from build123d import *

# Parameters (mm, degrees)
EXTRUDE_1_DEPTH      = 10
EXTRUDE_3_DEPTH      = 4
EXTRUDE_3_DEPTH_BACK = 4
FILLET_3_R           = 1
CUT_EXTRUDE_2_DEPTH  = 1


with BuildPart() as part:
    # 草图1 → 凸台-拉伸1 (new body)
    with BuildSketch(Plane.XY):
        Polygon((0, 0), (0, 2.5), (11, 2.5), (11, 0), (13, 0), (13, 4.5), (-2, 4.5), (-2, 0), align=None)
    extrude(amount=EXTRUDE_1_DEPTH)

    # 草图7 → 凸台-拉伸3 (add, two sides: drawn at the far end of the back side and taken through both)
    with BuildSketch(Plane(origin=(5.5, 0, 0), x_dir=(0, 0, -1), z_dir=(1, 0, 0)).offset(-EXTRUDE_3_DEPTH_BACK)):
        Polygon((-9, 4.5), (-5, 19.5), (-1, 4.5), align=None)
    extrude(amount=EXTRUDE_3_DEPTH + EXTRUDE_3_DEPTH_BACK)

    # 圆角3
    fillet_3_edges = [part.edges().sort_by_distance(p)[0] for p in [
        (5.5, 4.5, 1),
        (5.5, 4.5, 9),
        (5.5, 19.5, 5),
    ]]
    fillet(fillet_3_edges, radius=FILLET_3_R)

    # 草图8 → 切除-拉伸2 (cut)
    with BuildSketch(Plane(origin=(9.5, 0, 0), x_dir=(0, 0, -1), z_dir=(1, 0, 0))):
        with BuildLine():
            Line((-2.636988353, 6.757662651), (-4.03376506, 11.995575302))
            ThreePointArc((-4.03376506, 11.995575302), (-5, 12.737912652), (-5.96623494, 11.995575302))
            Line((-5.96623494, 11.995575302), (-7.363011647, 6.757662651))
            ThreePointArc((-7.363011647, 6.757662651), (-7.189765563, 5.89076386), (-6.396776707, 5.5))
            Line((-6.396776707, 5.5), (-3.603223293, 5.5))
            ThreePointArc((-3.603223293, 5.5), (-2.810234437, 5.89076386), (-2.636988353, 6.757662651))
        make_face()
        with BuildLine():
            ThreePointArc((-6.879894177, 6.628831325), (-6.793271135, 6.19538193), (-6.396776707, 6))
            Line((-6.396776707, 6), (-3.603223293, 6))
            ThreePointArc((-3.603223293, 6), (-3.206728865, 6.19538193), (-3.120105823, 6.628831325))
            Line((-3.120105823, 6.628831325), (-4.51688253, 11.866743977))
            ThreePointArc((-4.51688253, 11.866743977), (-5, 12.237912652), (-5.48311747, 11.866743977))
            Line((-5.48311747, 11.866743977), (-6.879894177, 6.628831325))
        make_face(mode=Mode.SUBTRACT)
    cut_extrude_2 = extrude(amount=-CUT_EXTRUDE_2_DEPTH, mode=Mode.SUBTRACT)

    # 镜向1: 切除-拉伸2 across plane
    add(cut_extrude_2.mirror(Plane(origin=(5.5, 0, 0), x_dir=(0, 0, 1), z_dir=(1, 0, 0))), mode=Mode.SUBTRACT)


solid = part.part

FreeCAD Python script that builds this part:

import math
import FreeCAD as App
import Part
import Sketcher

V = App.Vector
Q = App.Units.Quantity


def edges_at(feature, points):
    """Names of the edges that pass closest to the given points."""
    edges = feature.Shape.Edges
    near = lambda p: min(range(len(edges)), key=lambda i: edges[i].distToShape(Part.Vertex(*p))[0])
    return sorted({f"Edge{near(p) + 1}" for p in points})

doc = App.newDocument("Part")
params = doc.addObject("Spreadsheet::Sheet", "Params")
for row, (alias, value) in enumerate([
    ("sketch1_width", "11 mm"),
    ("sketch1_width2", "2 mm"),
    ("sketch1_height", "2.5 mm"),
    ("sketch1_height2", "4.5 mm"),
    ("pad1_length", "10 mm"),
    ("sketch2_height", "8 mm"),
    ("pad2_length", "4 mm"),
    ("pad2_length2", "4 mm"),
    ("fillet_radius", "1 mm"),
    ("sketch3_radius", "1 mm"),
    ("sketch3_radius2", "0.5 mm"),
    ("pocket1_length", "1 mm"),
], start=1):
    params.set(f"A{row}", alias)
    params.set(f"B{row}", "=" + value)
    params.setAlias(f"B{row}", alias)

body = doc.addObject("PartDesign::Body", "Body")

sketch1 = body.newObject("Sketcher::SketchObject", "Sketch")
sketch1.AttachmentSupport = (doc.getObject("XY_Plane"), [""])
sketch1.MapMode = "FlatFace"
sketch1.addGeometry([
    Part.LineSegment(V(0, 0, 0), V(0, 2.5, 0)),
    Part.LineSegment(V(0, 2.5, 0), V(11, 2.5, 0)),
    Part.LineSegment(V(11, 2.5, 0), V(11, 0, 0)),
    Part.LineSegment(V(11, 0, 0), V(13, 0, 0)),
    Part.LineSegment(V(13, 0, 0), V(13, 4.5, 0)),
    Part.LineSegment(V(13, 4.5, 0), V(-2, 4.5, 0)),
    Part.LineSegment(V(-2, 4.5, 0), V(-2, 0, 0)),
    Part.LineSegment(V(-2, 0, 0), V(0, 0, 0)),
], False)
sketch1.addConstraint([
    Sketcher.Constraint("Coincident", 0, 2, 1, 1),
    Sketcher.Constraint("Coincident", 1, 2, 2, 1),
    Sketcher.Constraint("Coincident", 2, 2, 3, 1),
    Sketcher.Constraint("Coincident", 3, 2, 4, 1),
    Sketcher.Constraint("Coincident", 4, 2, 5, 1),
    Sketcher.Constraint("Coincident", 5, 2, 6, 1),
    Sketcher.Constraint("Coincident", 6, 2, 7, 1),
    Sketcher.Constraint("Coincident", 7, 2, 0, 1),
    Sketcher.Constraint("Vertical", 0),
    Sketcher.Constraint("Horizontal", 1),
    Sketcher.Constraint("Vertical", 2),
    Sketcher.Constraint("Horizontal", 3),
    Sketcher.Constraint("Vertical", 4),
    Sketcher.Constraint("Horizontal", 5),
    Sketcher.Constraint("Vertical", 6),
    Sketcher.Constraint("Horizontal", 7),
    Sketcher.Constraint("Coincident", 7, 2, -1, 1),
    Sketcher.Constraint("PointOnObject", 2, 2, -1),
    Sketcher.Constraint("Equal", 3, 7),
    Sketcher.Constraint("DistanceX", 1, 1, 1, 2, Q("11 mm")),
    Sketcher.Constraint("DistanceX", 3, 1, 3, 2, Q("2 mm")),
    Sketcher.Constraint("DistanceY", 0, 1, 0, 2, Q("2.5 mm")),
    Sketcher.Constraint("DistanceY", 4, 1, 4, 2, Q("4.5 mm")),
])
sketch1.setExpression("Constraints[19]", "Params.sketch1_width")
sketch1.setExpression("Constraints[20]", "Params.sketch1_width2")
sketch1.setExpression("Constraints[21]", "Params.sketch1_height")
sketch1.setExpression("Constraints[22]", "Params.sketch1_height2")
pad1 = body.newObject("PartDesign::Pad", "Pad")
pad1.Profile = sketch1
pad1.setExpression("Length", "Params.pad1_length")

sketch2 = body.newObject("Sketcher::SketchObject", "Sketch001")
sketch2.AttachmentSupport = (doc.getObject("YZ_Plane"), [""])
sketch2.MapMode = "FlatFace"
sketch2.AttachmentOffset = App.Placement(V(0, 0, 5.5), App.Rotation())
sketch2.addGeometry([
    Part.LineSegment(V(20, 5, 0), V(4, 9, 0)),
    Part.LineSegment(V(4, 9, 0), V(4, 1, 0)),
    Part.LineSegment(V(4, 1, 0), V(20, 5, 0)),
], False)
sketch2.addConstraint([
    Sketcher.Constraint("Coincident", 0, 2, 1, 1),
    Sketcher.Constraint("Coincident", 1, 2, 2, 1),
    Sketcher.Constraint("Coincident", 2, 2, 0, 1),
    Sketcher.Constraint("Vertical", 1),
    Sketcher.Constraint("Equal", 0, 2),
    Sketcher.Constraint("DistanceY", 1, 2, 1, 1, Q("8 mm")),
    Sketcher.Constraint("DistanceY", -1, 1, 0, 2, Q("9 mm")),
    Sketcher.Constraint("DistanceX", 0, 2, 2, 2, Q("15 mm")),
    Sketcher.Constraint("DistanceX", -1, 1, 0, 2, Q("4.5 mm")),
])
sketch2.setExpression("Constraints[5]", "Params.sketch2_height")
pad2 = body.newObject("PartDesign::Pad", "Pad001")
pad2.Profile = sketch2
pad2.Type = "TwoLengths"
pad2.setExpression("Length", "Params.pad2_length")
pad2.setExpression("Length2", "Params.pad2_length2")
doc.recompute()

fillet = body.newObject("PartDesign::Fillet", "Fillet")
fillet.Base = (pad2, edges_at(pad2, [(5.5, 4.5, 1), (5.5, 4.5, 9), (5.5, 19.5, 5)]))
fillet.setExpression("Radius", "Params.fillet_radius")

sketch3 = body.newObject("Sketcher::SketchObject", "Sketch002")
sketch3.AttachmentSupport = (doc.getObject("YZ_Plane"), [""])
sketch3.MapMode = "FlatFace"
sketch3.AttachmentOffset = App.Placement(V(0, 0, 9.5), App.Rotation())
sketch3.addGeometry([
    Part.LineSegment(V(6.8, 2.6, 0), V(12, 4, 0)),
    Part.ArcOfCircle(Part.Circle(V(11.7, 5, 0), V(0, 0, 1), 1), math.radians(-75), math.radians(75)),
    Part.LineSegment(V(12, 6, 0), V(6.8, 7.4, 0)),
    Part.ArcOfCircle(Part.Circle(V(6.5, 6.4, 0), V(0, 0, 1), 1), math.radians(75), math.radians(180)),
    Part.LineSegment(V(5.5, 6.4, 0), V(5.5, 3.6, 0)),
    Part.ArcOfCircle(Part.Circle(V(6.5, 3.6, 0), V(0, 0, 1), 1), math.radians(180), math.radians(285)),
    Part.ArcOfCircle(Part.Circle(V(6.5, 6.4, 0), V(0, 0, 1), 0.5), math.radians(75), math.radians(180)),
    Part.LineSegment(V(6.6, 6.9, 0), V(11.9, 5.5, 0)),
    Part.ArcOfCircle(Part.Circle(V(11.7, 5, 0), V(0, 0, 1), 0.5), math.radians(-75), math.radians(75)),
    Part.LineSegment(V(11.9, 4.5, 0), V(6.6, 3.1, 0)),
    Part.ArcOfCircle(Part.Circle(V(6.5, 3.6, 0), V(0, 0, 1), 0.5), math.radians(180), math.radians(285)),
    Part.LineSegment(V(6, 3.6, 0), V(6, 6.4, 0)),
], False)
sketch3.addConstraint([
    Sketcher.Constraint("Tangent", 0, 2, 1, 1),
    Sketcher.Constraint("Tangent", 1, 2, 2, 1),
    Sketcher.Constraint("Tangent", 2, 2, 3, 1),
    Sketcher.Constraint("Tangent", 3, 2, 4, 1),
    Sketcher.Constraint("Tangent", 4, 2, 5, 1),
    Sketcher.Constraint("Tangent", 5, 2, 0, 1),
    Sketcher.Constraint("Tangent", 6, 1, 7, 1),
    Sketcher.Constraint("Tangent", 7, 2, 8, 2),
    Sketcher.Constraint("Tangent", 8, 1, 9, 1),
    Sketcher.Constraint("Tangent", 9, 2, 10, 2),
    Sketcher.Constraint("Tangent", 10, 1, 11, 1),
    Sketcher.Constraint("Tangent", 11, 2, 6, 2),
    Sketcher.Constraint("Vertical", 4),
    Sketcher.Constraint("Vertical", 11),
    Sketcher.Constraint("Coincident", 6, 3, 3, 3),
    Sketcher.Constraint("Coincident", 8, 3, 1, 3),
    Sketcher.Constraint("Coincident", 10, 3, 5, 3),
    Sketcher.Constraint("Equal", 1, 3),
    Sketcher.Constraint("Equal", 3, 5),
    Sketcher.Constraint("Equal", 6, 8),
    Sketcher.Constraint("Vertical", 0, 2, 1, 2),
    Sketcher.Constraint("Radius", 1, Q("1 mm")),
    Sketcher.Constraint("Radius", 6, Q("0.5 mm")),
    Sketcher.Constraint("DistanceY", -1, 1, 1, 3, Q("5 mm")),
    Sketcher.Constraint("DistanceX", -1, 1, 10, 1, Q("6 mm")),
    Sketcher.Constraint("Distance", 0, Q("5.420951 mm")),
    Sketcher.Constraint("DistanceY", 4, 2, 4, 1, Q("2.793553 mm")),
])
sketch3.setExpression("Constraints[21]", "Params.sketch3_radius")
sketch3.setExpression("Constraints[22]", "Params.sketch3_radius2")
pocket1 = body.newObject("PartDesign::Pocket", "Pocket")
pocket1.Profile = sketch3
pocket1.setExpression("Length", "Params.pocket1_length")
doc.recompute()

datumplane = body.newObject("PartDesign::Plane", "DatumPlane")
datumplane.AttachmentSupport = (doc.getObject("YZ_Plane"), [""])
datumplane.MapMode = "FlatFace"
datumplane.AttachmentOffset = App.Placement(V(0, 0, 5.5), App.Rotation())
mirrored = body.newObject("PartDesign::Mirrored", "Mirrored")
mirrored.Originals = [pocket1]
mirrored.MirrorPlane = (datumplane, [""])
body.Tip = mirrored

doc.recompute()
